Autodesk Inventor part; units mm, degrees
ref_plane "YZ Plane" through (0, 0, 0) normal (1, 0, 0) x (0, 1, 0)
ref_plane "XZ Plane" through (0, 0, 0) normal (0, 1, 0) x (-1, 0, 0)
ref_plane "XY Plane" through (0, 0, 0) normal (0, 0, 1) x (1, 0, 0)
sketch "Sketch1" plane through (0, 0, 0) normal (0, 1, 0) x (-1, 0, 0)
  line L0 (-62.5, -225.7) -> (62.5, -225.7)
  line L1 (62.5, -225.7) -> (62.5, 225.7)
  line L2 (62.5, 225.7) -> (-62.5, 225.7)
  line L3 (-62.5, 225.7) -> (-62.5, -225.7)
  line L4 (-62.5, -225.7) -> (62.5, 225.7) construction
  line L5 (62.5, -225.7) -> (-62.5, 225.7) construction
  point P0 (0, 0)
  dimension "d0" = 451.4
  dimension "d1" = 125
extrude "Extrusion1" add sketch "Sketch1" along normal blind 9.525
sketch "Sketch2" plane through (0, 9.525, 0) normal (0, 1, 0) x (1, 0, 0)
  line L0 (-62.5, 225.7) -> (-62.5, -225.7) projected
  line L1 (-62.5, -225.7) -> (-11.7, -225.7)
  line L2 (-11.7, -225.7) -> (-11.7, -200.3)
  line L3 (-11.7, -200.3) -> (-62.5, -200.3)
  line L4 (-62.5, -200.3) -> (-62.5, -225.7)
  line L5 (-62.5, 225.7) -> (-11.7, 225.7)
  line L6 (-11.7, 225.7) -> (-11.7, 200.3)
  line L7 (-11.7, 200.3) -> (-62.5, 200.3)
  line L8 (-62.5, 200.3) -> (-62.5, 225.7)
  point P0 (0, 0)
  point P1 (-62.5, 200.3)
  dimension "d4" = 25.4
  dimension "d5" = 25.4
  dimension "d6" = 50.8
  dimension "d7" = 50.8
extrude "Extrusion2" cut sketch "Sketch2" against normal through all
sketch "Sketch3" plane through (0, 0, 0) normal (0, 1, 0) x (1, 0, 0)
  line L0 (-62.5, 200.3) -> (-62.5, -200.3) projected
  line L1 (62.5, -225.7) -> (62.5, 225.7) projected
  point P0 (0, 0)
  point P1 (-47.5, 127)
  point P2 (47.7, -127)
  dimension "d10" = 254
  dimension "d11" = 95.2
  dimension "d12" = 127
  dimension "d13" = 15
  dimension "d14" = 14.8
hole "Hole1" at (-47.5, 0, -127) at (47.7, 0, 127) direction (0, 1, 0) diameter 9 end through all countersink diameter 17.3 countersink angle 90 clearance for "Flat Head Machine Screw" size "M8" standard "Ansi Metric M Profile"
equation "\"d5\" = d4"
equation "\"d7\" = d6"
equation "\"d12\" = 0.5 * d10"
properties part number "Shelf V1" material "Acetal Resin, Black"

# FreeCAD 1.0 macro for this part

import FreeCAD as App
import Part
import Sketcher
from FreeCAD import Vector


def add_polygon(sketch, points):
    """Adds a closed chain of lines whose ends are joined by coincident constraints."""
    first, n = sketch.GeometryCount, len(points)
    for a, b in zip(points, points[1:] + points[:1]):
        sketch.addGeometry(Part.LineSegment(App.Vector(*a, 0), App.Vector(*b, 0)), False)
    for i in range(n):
        sketch.addConstraint(Sketcher.Constraint("Coincident", first + i, 2, first + (i + 1) % n, 1))

doc = App.newDocument("Part")
body = doc.addObject("PartDesign::Body", "Body")

# Sketch on XZ plane
sketch1 = body.newObject("Sketcher::SketchObject", "Sketch")
sketch1.AttachmentSupport = (doc.getObject("XZ_Plane"), [""])
sketch1.MapMode = "FlatFace"
add_polygon(sketch1, [(62, 226), (62, -226), (-62, -226), (-62, 226)])  # lines 0-3
sketch1.addConstraint([
    Sketcher.Constraint("Vertical", 0),
    Sketcher.Constraint("Horizontal", 1),
    Sketcher.Constraint("Vertical", 2),
    Sketcher.Constraint("Horizontal", 3),
    Sketcher.Constraint("Symmetric", 0, 2, 2, 2, -1, 1),
    Sketcher.Constraint("DistanceX", 1, 2, 1, 1, 125.0),
    Sketcher.Constraint("DistanceY", 0, 2, 0, 1, 451.4),
])
pad1 = body.newObject("PartDesign::Pad", "Pad")
pad1.Profile = sketch1
pad1.Length = 9.525
pad1.Reversed = True

# Sketch on XZ plane
sketch2 = body.newObject("Sketcher::SketchObject", "Sketch001")
sketch2.AttachmentSupport = (doc.getObject("XZ_Plane"), [""])
sketch2.MapMode = "FlatFace"
sketch2.AttachmentOffset = App.Placement(Vector(0, 0, -9.525), App.Rotation())
add_polygon(sketch2, [(-12, -226), (-62, -226), (-62, -200), (-12, -200)])  # lines 0-3
add_polygon(sketch2, [(-12, 200), (-62, 200), (-62, 226), (-12, 226)])  # lines 4-7
sketch2.addConstraint([
    Sketcher.Constraint("Horizontal", 0),
    Sketcher.Constraint("Vertical", 1),
    Sketcher.Constraint("Horizontal", 2),
    Sketcher.Constraint("Vertical", 3),
    Sketcher.Constraint("Horizontal", 4),
    Sketcher.Constraint("Vertical", 5),
    Sketcher.Constraint("Horizontal", 6),
    Sketcher.Constraint("Vertical", 7),
    Sketcher.Constraint("Symmetric", 1, 2, 4, 2, -1),
    Sketcher.Constraint("Symmetric", 3, 2, 6, 2, -1),
    Sketcher.Constraint("DistanceX", 0, 2, 0, 1, 50.8),
    Sketcher.Constraint("DistanceY", 1, 1, 1, 2, 25.4),
    Sketcher.Constraint("DistanceY", 0, 2, 4, 2, 426.0),
    Sketcher.Constraint("DistanceX", 0, 2, -1, 1, 62.5),
])
pocket1 = body.newObject("PartDesign::Pocket", "Pocket")
pocket1.Profile = sketch2
pocket1.Type = "ThroughAll"
pocket1.Reversed = True

# Sketch on XZ plane
sketch3 = body.newObject("Sketcher::SketchObject", "Sketch002")
sketch3.AttachmentSupport = (doc.getObject("XZ_Plane"), [""])
sketch3.MapMode = "FlatFace"
sketch3.addGeometry([
    Part.Circle(Vector(-47.5, -127, 0), Vector(0, 0, 1), 4.5),
    Part.Circle(Vector(47.7, 127, 0), Vector(0, 0, 1), 4.5),
], False)
sketch3.addConstraint([
    Sketcher.Constraint("Equal", 0, 1),
    Sketcher.Constraint("Diameter", 0, 9.0),
    Sketcher.Constraint("DistanceY", 0, 3, -1, 1, 127.0),
    Sketcher.Constraint("DistanceY", -1, 1, 1, 3, 127.0),
    Sketcher.Constraint("DistanceX", 0, 3, -1, 1, 47.5),
    Sketcher.Constraint("DistanceX", -1, 1, 1, 3, 47.7),
])
doc.recompute()
hole = body.newObject("PartDesign::Hole", "Hole")
hole.Profile = sketch3
hole.ThreadType = "None"
hole.Diameter = 9
hole.DepthType = "ThroughAll"
hole.HoleCutType = "Countersink"
hole.HoleCutDiameter = 17.3
hole.HoleCutCountersinkAngle = 90

doc.recompute()
